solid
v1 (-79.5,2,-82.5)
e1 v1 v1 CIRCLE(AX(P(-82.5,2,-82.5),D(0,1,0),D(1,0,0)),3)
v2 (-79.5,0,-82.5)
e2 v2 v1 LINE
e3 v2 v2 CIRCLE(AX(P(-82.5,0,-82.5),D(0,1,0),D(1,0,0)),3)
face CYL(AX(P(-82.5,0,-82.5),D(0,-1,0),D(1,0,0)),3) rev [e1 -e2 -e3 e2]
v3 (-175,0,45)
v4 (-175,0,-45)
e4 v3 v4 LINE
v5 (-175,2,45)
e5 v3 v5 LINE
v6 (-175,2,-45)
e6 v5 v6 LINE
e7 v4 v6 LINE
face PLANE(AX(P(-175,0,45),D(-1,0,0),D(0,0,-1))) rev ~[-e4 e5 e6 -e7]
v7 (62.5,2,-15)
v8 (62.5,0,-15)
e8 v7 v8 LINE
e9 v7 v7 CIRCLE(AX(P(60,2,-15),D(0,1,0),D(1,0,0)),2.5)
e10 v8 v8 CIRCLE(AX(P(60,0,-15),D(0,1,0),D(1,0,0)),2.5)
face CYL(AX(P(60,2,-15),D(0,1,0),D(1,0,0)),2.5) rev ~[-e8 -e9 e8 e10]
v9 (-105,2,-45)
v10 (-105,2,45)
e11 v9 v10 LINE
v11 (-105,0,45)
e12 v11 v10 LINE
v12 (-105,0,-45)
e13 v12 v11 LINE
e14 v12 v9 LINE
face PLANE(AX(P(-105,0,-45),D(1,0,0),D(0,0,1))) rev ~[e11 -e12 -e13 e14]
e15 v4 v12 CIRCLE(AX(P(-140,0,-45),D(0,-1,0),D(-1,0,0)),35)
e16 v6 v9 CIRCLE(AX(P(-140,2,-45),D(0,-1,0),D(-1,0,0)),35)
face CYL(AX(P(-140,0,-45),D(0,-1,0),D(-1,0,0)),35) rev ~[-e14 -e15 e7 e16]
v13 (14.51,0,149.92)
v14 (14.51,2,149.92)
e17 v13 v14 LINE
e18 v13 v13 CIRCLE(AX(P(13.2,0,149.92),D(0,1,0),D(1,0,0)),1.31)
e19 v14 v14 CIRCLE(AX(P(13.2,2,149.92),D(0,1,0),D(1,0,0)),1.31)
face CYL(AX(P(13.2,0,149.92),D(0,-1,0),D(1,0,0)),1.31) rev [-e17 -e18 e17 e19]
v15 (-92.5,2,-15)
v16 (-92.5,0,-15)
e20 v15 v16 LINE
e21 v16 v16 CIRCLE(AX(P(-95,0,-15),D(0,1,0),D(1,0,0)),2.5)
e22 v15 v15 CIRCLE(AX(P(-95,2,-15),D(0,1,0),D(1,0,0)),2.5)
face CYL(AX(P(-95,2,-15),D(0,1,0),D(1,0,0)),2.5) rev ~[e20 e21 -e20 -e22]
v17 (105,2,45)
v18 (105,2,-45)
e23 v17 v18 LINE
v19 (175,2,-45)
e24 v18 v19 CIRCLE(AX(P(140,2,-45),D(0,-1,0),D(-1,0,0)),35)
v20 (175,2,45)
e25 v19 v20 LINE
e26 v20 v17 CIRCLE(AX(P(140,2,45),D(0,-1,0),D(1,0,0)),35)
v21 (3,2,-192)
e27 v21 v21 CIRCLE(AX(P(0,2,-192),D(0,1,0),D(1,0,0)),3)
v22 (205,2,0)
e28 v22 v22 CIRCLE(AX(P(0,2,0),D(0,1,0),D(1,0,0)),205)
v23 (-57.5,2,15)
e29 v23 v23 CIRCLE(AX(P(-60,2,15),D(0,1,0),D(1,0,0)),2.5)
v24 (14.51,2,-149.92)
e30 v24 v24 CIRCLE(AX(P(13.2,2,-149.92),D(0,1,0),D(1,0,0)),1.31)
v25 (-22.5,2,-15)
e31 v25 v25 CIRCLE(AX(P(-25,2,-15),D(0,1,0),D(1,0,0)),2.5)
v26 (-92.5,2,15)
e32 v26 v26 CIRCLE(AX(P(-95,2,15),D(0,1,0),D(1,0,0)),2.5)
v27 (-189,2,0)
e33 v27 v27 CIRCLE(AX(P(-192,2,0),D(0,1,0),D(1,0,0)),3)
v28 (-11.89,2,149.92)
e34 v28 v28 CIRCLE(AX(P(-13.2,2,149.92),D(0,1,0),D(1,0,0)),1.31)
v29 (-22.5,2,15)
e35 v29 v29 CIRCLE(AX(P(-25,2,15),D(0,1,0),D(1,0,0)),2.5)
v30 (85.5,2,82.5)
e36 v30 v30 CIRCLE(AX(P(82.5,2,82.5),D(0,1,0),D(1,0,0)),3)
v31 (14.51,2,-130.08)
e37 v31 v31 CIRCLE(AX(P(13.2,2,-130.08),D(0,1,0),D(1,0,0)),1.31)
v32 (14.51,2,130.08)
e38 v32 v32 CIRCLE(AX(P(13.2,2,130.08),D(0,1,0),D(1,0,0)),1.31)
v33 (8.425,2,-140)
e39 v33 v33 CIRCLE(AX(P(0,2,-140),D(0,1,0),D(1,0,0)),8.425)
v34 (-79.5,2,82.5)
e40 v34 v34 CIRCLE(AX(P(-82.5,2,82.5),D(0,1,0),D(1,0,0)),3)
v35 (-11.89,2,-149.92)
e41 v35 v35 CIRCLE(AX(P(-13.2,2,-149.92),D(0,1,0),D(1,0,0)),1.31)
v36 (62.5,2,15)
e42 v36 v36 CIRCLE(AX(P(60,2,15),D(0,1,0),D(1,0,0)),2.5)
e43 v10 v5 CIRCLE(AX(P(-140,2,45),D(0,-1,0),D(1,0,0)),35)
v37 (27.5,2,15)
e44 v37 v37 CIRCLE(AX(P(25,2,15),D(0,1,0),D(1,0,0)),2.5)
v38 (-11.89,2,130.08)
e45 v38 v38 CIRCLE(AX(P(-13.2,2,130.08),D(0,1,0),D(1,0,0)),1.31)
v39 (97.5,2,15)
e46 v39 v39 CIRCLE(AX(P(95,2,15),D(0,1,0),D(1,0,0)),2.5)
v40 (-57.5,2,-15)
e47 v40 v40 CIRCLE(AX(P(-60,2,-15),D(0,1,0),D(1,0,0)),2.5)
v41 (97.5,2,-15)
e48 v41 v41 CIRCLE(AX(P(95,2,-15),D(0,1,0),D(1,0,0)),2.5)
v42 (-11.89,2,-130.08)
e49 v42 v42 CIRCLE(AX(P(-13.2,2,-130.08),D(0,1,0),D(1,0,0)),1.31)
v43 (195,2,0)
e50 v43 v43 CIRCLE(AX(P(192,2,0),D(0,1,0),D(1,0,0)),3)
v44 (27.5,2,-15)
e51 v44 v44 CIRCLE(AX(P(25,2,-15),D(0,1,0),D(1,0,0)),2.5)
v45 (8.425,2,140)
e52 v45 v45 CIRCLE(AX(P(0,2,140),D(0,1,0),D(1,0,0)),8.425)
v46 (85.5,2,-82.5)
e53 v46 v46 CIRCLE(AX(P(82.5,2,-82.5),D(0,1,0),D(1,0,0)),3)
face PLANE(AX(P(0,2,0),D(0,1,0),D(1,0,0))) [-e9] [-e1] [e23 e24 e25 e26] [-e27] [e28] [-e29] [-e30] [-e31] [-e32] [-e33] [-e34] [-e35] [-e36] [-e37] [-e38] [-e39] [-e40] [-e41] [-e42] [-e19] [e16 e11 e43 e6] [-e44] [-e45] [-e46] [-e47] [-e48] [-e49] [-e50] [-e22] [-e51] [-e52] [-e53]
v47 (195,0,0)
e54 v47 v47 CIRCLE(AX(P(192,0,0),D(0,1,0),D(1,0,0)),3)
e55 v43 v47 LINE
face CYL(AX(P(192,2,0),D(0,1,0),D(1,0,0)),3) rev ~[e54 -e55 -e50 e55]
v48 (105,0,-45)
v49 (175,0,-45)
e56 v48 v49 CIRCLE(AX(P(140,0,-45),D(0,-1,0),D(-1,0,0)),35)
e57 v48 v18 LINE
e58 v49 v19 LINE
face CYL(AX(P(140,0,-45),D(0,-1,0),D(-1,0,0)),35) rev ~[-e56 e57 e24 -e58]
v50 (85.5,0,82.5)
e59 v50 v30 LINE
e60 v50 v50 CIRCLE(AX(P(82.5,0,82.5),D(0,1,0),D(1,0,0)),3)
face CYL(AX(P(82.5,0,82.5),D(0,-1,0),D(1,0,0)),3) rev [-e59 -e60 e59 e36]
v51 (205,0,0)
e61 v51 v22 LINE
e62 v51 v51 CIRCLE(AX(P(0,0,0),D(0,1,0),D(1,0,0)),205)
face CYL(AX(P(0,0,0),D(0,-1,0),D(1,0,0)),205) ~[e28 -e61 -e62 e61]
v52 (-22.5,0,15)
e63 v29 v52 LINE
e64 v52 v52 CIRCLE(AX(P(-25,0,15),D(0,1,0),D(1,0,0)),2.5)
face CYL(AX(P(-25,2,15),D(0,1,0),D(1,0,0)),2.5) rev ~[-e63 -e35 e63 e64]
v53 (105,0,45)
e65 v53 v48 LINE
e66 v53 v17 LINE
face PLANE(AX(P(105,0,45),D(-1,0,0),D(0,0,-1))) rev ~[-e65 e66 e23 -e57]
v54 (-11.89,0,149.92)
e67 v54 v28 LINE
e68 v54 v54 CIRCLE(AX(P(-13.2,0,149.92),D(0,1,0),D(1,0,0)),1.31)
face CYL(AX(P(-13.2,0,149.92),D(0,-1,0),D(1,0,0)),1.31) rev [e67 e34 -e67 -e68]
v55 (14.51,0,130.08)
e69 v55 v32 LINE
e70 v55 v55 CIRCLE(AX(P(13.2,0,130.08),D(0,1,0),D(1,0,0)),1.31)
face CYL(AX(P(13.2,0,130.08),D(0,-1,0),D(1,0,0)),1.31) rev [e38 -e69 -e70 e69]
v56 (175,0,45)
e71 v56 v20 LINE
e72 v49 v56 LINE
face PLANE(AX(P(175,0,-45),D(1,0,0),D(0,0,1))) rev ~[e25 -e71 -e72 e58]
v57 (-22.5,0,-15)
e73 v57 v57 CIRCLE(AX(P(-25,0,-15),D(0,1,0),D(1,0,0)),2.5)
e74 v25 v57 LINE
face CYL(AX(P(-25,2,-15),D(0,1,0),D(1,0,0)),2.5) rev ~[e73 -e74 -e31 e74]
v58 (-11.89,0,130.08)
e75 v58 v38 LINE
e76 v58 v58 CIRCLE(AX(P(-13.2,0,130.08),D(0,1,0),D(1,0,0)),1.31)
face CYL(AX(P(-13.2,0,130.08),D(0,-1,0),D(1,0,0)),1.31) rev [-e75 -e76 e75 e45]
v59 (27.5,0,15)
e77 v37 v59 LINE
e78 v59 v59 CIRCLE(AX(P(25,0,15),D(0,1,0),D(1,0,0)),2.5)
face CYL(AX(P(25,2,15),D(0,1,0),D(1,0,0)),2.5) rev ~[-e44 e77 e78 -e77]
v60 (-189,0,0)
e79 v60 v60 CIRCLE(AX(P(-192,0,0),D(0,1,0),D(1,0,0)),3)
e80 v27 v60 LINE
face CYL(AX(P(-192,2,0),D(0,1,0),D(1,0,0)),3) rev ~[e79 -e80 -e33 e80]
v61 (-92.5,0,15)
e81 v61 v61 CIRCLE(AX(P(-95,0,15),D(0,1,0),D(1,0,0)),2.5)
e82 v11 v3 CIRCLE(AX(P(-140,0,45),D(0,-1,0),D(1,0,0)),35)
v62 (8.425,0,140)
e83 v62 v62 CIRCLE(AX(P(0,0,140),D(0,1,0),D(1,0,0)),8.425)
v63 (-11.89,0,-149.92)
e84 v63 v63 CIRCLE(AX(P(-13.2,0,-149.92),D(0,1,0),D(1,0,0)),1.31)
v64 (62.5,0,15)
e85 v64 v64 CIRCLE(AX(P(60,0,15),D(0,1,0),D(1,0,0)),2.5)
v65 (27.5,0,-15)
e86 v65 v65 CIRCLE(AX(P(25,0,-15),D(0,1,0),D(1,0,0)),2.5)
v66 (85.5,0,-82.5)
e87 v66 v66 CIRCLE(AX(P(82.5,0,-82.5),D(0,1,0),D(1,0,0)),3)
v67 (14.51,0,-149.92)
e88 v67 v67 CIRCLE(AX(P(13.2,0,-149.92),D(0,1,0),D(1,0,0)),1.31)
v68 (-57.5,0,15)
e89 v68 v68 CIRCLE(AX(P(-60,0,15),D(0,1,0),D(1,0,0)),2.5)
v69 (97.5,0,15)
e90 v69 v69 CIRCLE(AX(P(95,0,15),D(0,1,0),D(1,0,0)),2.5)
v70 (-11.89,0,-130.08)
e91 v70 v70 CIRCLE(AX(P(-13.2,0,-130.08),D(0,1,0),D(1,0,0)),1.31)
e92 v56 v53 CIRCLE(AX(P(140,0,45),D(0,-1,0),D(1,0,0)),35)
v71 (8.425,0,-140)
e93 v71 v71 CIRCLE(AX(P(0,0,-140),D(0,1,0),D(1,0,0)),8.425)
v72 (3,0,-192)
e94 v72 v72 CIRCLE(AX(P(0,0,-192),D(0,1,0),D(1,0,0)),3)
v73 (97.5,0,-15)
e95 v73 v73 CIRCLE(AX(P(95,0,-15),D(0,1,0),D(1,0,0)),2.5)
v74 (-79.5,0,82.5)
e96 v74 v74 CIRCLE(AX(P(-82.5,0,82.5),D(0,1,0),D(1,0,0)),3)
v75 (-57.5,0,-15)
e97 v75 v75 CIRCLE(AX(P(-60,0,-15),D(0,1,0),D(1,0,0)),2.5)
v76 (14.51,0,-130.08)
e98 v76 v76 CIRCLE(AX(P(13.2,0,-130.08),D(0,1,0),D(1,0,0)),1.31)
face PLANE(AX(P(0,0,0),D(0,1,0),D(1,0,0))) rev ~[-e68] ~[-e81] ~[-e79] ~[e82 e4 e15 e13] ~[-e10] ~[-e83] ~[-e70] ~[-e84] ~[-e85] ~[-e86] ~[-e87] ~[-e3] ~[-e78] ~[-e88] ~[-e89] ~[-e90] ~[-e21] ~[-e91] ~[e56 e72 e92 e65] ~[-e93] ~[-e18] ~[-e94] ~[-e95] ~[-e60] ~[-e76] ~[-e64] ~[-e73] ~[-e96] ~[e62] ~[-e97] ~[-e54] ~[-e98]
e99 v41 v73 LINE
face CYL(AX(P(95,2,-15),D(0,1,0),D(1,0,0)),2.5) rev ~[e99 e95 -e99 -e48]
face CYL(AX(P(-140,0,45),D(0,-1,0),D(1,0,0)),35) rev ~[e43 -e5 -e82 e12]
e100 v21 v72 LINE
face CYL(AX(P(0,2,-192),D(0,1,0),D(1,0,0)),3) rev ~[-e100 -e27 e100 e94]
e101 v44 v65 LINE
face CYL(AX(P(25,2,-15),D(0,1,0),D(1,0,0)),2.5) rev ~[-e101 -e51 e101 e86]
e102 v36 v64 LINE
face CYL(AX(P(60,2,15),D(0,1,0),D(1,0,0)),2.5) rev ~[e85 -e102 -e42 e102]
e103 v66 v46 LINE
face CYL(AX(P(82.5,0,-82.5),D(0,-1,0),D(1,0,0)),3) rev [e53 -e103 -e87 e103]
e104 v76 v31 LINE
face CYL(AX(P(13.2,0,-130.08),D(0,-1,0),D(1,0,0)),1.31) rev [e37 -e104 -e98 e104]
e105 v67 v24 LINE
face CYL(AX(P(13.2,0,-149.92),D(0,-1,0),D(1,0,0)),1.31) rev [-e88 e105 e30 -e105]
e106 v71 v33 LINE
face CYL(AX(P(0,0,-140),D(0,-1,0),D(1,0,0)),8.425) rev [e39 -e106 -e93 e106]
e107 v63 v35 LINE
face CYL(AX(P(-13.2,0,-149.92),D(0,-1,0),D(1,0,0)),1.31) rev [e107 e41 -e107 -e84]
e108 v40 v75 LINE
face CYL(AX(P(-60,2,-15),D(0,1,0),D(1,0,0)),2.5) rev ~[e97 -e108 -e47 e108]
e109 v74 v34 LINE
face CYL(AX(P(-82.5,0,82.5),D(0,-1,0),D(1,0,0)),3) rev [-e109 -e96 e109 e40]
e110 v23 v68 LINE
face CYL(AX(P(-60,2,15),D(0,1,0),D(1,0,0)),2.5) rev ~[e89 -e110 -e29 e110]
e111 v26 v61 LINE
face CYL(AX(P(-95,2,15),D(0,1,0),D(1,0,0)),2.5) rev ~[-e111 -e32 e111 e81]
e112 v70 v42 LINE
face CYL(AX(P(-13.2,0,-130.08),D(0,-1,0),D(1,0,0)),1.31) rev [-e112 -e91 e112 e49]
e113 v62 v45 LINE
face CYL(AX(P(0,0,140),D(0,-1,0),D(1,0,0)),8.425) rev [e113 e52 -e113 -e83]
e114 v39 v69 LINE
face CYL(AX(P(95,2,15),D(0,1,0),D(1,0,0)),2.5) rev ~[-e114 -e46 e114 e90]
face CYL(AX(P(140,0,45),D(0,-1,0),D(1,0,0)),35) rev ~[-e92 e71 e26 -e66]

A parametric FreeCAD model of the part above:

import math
import FreeCAD as App
import Part
import Sketcher

V = App.Vector
Q = App.Units.Quantity

doc = App.newDocument("Part")
body = doc.addObject("PartDesign::Body", "Body")

# Sketch on XZ plane
sketch1 = doc.addObject("Sketcher::SketchObject", "Sketch")
body.addObject(sketch1)
sketch1.AttachmentSupport = (doc.XZ_Plane, [""])
sketch1.MapMode = "FlatFace"
sketch1.addGeometry(Part.Circle(V(0, 0, 0), V(0, 0, 1), 205), False)
sketch1.addGeometry(Part.Circle(V(-13.2, 149.9, 0), V(0, 0, 1), 1.3), False)
sketch1.addGeometry(Part.Circle(V(-13.2, 130.1, 0), V(0, 0, 1), 1.3), False)
sketch1.addGeometry(Part.Circle(V(-82.5, 82.5, 0), V(0, 0, 1), 3), False)
sketch1.addGeometry(Part.ArcOfCircle(Part.Circle(V(-140, -45, 0), V(0, 0, 1), 35), math.radians(180), math.radians(360)), False)
sketch1.addGeometry(Part.LineSegment(V(-105, -45, 0), V(-105, 45, 0)), False)
sketch1.addGeometry(Part.ArcOfCircle(Part.Circle(V(-140, 45, 0), V(0, 0, 1), 35), math.radians(0), math.radians(180)), False)
sketch1.addGeometry(Part.LineSegment(V(-175, 45, 0), V(-175, -45, 0)), False)
sketch1.addGeometry(Part.Circle(V(13.2, 149.9, 0), V(0, 0, 1), 1.3), False)
sketch1.addGeometry(Part.Circle(V(0, 140, 0), V(0, 0, 1), 8.4), False)
sketch1.addGeometry(Part.Circle(V(13.2, 130.1, 0), V(0, 0, 1), 1.3), False)
sketch1.addGeometry(Part.Circle(V(82.5, 82.5, 0), V(0, 0, 1), 3), False)
sketch1.addGeometry(Part.ArcOfCircle(Part.Circle(V(140, -45, 0), V(0, 0, 1), 35), math.radians(180), math.radians(360)), False)
sketch1.addGeometry(Part.LineSegment(V(175, -45, 0), V(175, 45, 0)), False)
sketch1.addGeometry(Part.ArcOfCircle(Part.Circle(V(140, 45, 0), V(0, 0, 1), 35), math.radians(0), math.radians(180)), False)
sketch1.addGeometry(Part.LineSegment(V(105, 45, 0), V(105, -45, 0)), False)
sketch1.addGeometry(Part.Circle(V(-82.5, -82.5, 0), V(0, 0, 1), 3), False)
sketch1.addGeometry(Part.Circle(V(-13.2, -130.1, 0), V(0, 0, 1), 1.3), False)
sketch1.addGeometry(Part.Circle(V(-13.2, -149.9, 0), V(0, 0, 1), 1.3), False)
sketch1.addGeometry(Part.Circle(V(82.5, -82.5, 0), V(0, 0, 1), 3), False)
sketch1.addGeometry(Part.Circle(V(13.2, -130.1, 0), V(0, 0, 1), 1.3), False)
sketch1.addGeometry(Part.Circle(V(0, -140, 0), V(0, 0, 1), 8.4), False)
sketch1.addGeometry(Part.Circle(V(13.2, -149.9, 0), V(0, 0, 1), 1.3), False)
sketch1.addConstraint(Sketcher.Constraint("Tangent", 4, 2, 5, 1))
sketch1.addConstraint(Sketcher.Constraint("Tangent", 5, 2, 6, 1))
sketch1.addConstraint(Sketcher.Constraint("Tangent", 6, 2, 7, 1))
sketch1.addConstraint(Sketcher.Constraint("Tangent", 7, 2, 4, 1))
sketch1.addConstraint(Sketcher.Constraint("Tangent", 12, 2, 13, 1))
sketch1.addConstraint(Sketcher.Constraint("Tangent", 13, 2, 14, 1))
sketch1.addConstraint(Sketcher.Constraint("Tangent", 14, 2, 15, 1))
sketch1.addConstraint(Sketcher.Constraint("Tangent", 15, 2, 12, 1))
sketch1.addConstraint(Sketcher.Constraint("Vertical", 5))
sketch1.addConstraint(Sketcher.Constraint("Vertical", 7))
sketch1.addConstraint(Sketcher.Constraint("Vertical", 13))
sketch1.addConstraint(Sketcher.Constraint("Vertical", 15))
sketch1.addConstraint(Sketcher.Constraint("Coincident", 0, 3, -1, 1))
sketch1.addConstraint(Sketcher.Constraint("Equal", 1, 2))
sketch1.addConstraint(Sketcher.Constraint("Equal", 2, 8))
sketch1.addConstraint(Sketcher.Constraint("Equal", 8, 10))
sketch1.addConstraint(Sketcher.Constraint("Equal", 3, 11))
sketch1.addConstraint(Sketcher.Constraint("Equal", 6, 12))
sketch1.addConstraint(Sketcher.Constraint("Equal", 11, 16))
sketch1.addConstraint(Sketcher.Constraint("Equal", 10, 17))
sketch1.addConstraint(Sketcher.Constraint("Equal", 17, 18))
sketch1.addConstraint(Sketcher.Constraint("Equal", 16, 19))
sketch1.addConstraint(Sketcher.Constraint("Equal", 18, 20))
sketch1.addConstraint(Sketcher.Constraint("Equal", 9, 21))
sketch1.addConstraint(Sketcher.Constraint("Equal", 20, 22))
sketch1.addConstraint(Sketcher.Constraint("Symmetric", 6, 3, 12, 3, -1, 1))
sketch1.addConstraint(Sketcher.Constraint("Symmetric", 11, 3, 16, 3, -1, 1))
sketch1.addConstraint(Sketcher.Constraint("Symmetric", 10, 3, 17, 3, -1, 1))
sketch1.addConstraint(Sketcher.Constraint("Symmetric", 8, 3, 18, 3, -1, 1))
sketch1.addConstraint(Sketcher.Constraint("Symmetric", 3, 3, 19, 3, -1, 1))
sketch1.addConstraint(Sketcher.Constraint("Symmetric", 2, 3, 20, 3, -1, 1))
sketch1.addConstraint(Sketcher.Constraint("Symmetric", 9, 3, 21, 3, -1, 1))
sketch1.addConstraint(Sketcher.Constraint("Symmetric", 1, 3, 22, 3, -1, 1))
sketch1.addConstraint(Sketcher.Constraint("Symmetric", 1, 3, 8, 3, -2))
sketch1.addConstraint(Sketcher.Constraint("Symmetric", 2, 3, 10, 3, -2))
sketch1.addConstraint(Sketcher.Constraint("Symmetric", 3, 3, 11, 3, -2))
sketch1.addConstraint(Sketcher.Constraint("PointOnObject", 9, 3, -2))
sketch1.addConstraint(Sketcher.Constraint("Horizontal", 4, 3, 12, 3))
sketch1.addConstraint(Sketcher.Constraint("Horizontal", 6, 3, 14, 3))
sketch1.addConstraint(Sketcher.Constraint("Vertical", 1, 3, 2, 3))
sketch1.addConstraint(Sketcher.Constraint("Diameter", 0, Q("410 mm")))
sketch1.addConstraint(Sketcher.Constraint("Diameter", 3, Q("6 mm")))
sketch1.addConstraint(Sketcher.Constraint("Radius", 4, Q("35 mm")))
sketch1.addConstraint(Sketcher.Constraint("Diameter", 1, Q("2.62 mm")))
sketch1.addConstraint(Sketcher.Constraint("Diameter", 9, Q("16.85 mm")))
sketch1.addConstraint(Sketcher.Constraint("DistanceY", 5, 1, 5, 2, Q("90 mm")))
sketch1.addConstraint(Sketcher.Constraint("DistanceX", 4, 3, -1, 1, Q("140 mm")))
sketch1.addConstraint(Sketcher.Constraint("DistanceY", -1, 1, 9, 3, Q("140 mm")))
sketch1.addConstraint(Sketcher.Constraint("DistanceY", 16, 3, 3, 3, Q("165 mm")))
sketch1.addConstraint(Sketcher.Constraint("DistanceX", 1, 3, -1, 1, Q("13.2 mm")))
sketch1.addConstraint(Sketcher.Constraint("DistanceX", 3, 3, -1, 1, Q("82.5 mm")))
sketch1.addConstraint(Sketcher.Constraint("DistanceY", -1, 1, 1, 3, Q("149.92 mm")))
sketch1.addConstraint(Sketcher.Constraint("DistanceY", -1, 1, 2, 3, Q("130.08 mm")))
pad1 = doc.addObject("PartDesign::Pad", "Pad")
body.addObject(pad1)
pad1.Profile = sketch1
pad1.Length = 2
pad1.Reversed = True

# Sketch on XZ plane
sketch2 = doc.addObject("Sketcher::SketchObject", "Sketch001")
body.addObject(sketch2)
sketch2.AttachmentSupport = (doc.XZ_Plane, [""])
sketch2.MapMode = "FlatFace"
sketch2.AttachmentOffset = App.Placement(V(0, 0, -2), App.Rotation())
sketch2.addGeometry(Part.Circle(V(0, -192, 0), V(0, 0, 1), 3), False)
sketch2.addGeometry(Part.Circle(V(192, 0, 0), V(0, 0, 1), 3), False)
sketch2.addGeometry(Part.Circle(V(-192, 0, 0), V(0, 0, 1), 3), False)
sketch2.addConstraint(Sketcher.Constraint("Equal", 0, 1))
sketch2.addConstraint(Sketcher.Constraint("Equal", 1, 2))
sketch2.addConstraint(Sketcher.Constraint("Symmetric", 1, 3, 2, 3, -1, 1))
sketch2.addConstraint(Sketcher.Constraint("PointOnObject", 0, 3, -2))
sketch2.addConstraint(Sketcher.Constraint("PointOnObject", 1, 3, -1))
sketch2.addConstraint(Sketcher.Constraint("Diameter", 0, Q("6 mm")))
sketch2.addConstraint(Sketcher.Constraint("DistanceY", 0, 3, -1, 1, Q("192 mm")))
sketch2.addConstraint(Sketcher.Constraint("DistanceX", -1, 1, 1, 3, Q("192 mm")))
pocket1 = doc.addObject("PartDesign::Pocket", "Pocket")
body.addObject(pocket1)
pocket1.Profile = sketch2
pocket1.Type = "ThroughAll"
pocket1.Midplane = True

# Sketch on XZ plane
sketch3 = doc.addObject("Sketcher::SketchObject", "Sketch002")
body.addObject(sketch3)
sketch3.AttachmentSupport = (doc.XZ_Plane, [""])
sketch3.MapMode = "FlatFace"
sketch3.AttachmentOffset = App.Placement(V(0, 0, -2), App.Rotation())
sketch3.addGeometry(Part.Circle(V(95, -15, 0), V(0, 0, 1), 2.5), False)
sketch3.addGeometry(Part.Circle(V(95, 15, 0), V(0, 0, 1), 2.5), False)
sketch3.addGeometry(Part.Circle(V(60, 15, 0), V(0, 0, 1), 2.5), False)
sketch3.addGeometry(Part.Circle(V(25, 15, 0), V(0, 0, 1), 2.5), False)
sketch3.addGeometry(Part.Circle(V(25, -15, 0), V(0, 0, 1), 2.5), False)
sketch3.addGeometry(Part.Circle(V(60, -15, 0), V(0, 0, 1), 2.5), False)
sketch3.addGeometry(Part.Circle(V(-60, -15, 0), V(0, 0, 1), 2.5), False)
sketch3.addGeometry(Part.Circle(V(-25, -15, 0), V(0, 0, 1), 2.5), False)
sketch3.addGeometry(Part.Circle(V(-25, 15, 0), V(0, 0, 1), 2.5), False)
sketch3.addGeometry(Part.Circle(V(-60, 15, 0), V(0, 0, 1), 2.5), False)
sketch3.addGeometry(Part.Circle(V(-95, 15, 0), V(0, 0, 1), 2.5), False)
sketch3.addGeometry(Part.Circle(V(-95, -15, 0), V(0, 0, 1), 2.5), False)
sketch3.addConstraint(Sketcher.Constraint("Equal", 0, 1))
sketch3.addConstraint(Sketcher.Constraint("Equal", 1, 2))
sketch3.addConstraint(Sketcher.Constraint("Equal", 2, 3))
sketch3.addConstraint(Sketcher.Constraint("Equal", 3, 4))
sketch3.addConstraint(Sketcher.Constraint("Equal", 4, 5))
sketch3.addConstraint(Sketcher.Constraint("Equal", 5, 6))
sketch3.addConstraint(Sketcher.Constraint("Equal", 6, 7))
sketch3.addConstraint(Sketcher.Constraint("Equal", 7, 8))
sketch3.addConstraint(Sketcher.Constraint("Equal", 8, 9))
sketch3.addConstraint(Sketcher.Constraint("Equal", 9, 10))
sketch3.addConstraint(Sketcher.Constraint("Equal", 10, 11))
sketch3.addConstraint(Sketcher.Constraint("Symmetric", 2, 3, 6, 3, -1, 1))
sketch3.addConstraint(Sketcher.Constraint("Symmetric", 3, 3, 7, 3, -1, 1))
sketch3.addConstraint(Sketcher.Constraint("Symmetric", 4, 3, 8, 3, -1, 1))
sketch3.addConstraint(Sketcher.Constraint("Symmetric", 5, 3, 9, 3, -1, 1))
sketch3.addConstraint(Sketcher.Constraint("Symmetric", 0, 3, 10, 3, -1, 1))
sketch3.addConstraint(Sketcher.Constraint("Symmetric", 1, 3, 11, 3, -1, 1))
sketch3.addConstraint(Sketcher.Constraint("Symmetric", 5, 3, 6, 3, -2))
sketch3.addConstraint(Sketcher.Constraint("Symmetric", 4, 3, 7, 3, -2))
sketch3.addConstraint(Sketcher.Constraint("Symmetric", 1, 3, 10, 3, -2))
sketch3.addConstraint(Sketcher.Constraint("Horizontal", 1, 3, 2, 3))
sketch3.addConstraint(Sketcher.Constraint("Horizontal", 2, 3, 3, 3))
sketch3.addConstraint(Sketcher.Constraint("Diameter", 0, Q("5 mm")))
sketch3.addConstraint(Sketcher.Constraint("DistanceX", -1, 1, 0, 3, Q("95 mm")))
sketch3.addConstraint(Sketcher.Constraint("DistanceY", 0, 3, -1, 1, Q("15 mm")))
sketch3.addConstraint(Sketcher.Constraint("DistanceX", -1, 1, 2, 3, Q("60 mm")))
sketch3.addConstraint(Sketcher.Constraint("DistanceX", -1, 1, 3, 3, Q("25 mm")))
pocket2 = doc.addObject("PartDesign::Pocket", "Pocket001")
body.addObject(pocket2)
pocket2.Profile = sketch3
pocket2.Length = 10
pocket2.Reversed = True

doc.recompute()
